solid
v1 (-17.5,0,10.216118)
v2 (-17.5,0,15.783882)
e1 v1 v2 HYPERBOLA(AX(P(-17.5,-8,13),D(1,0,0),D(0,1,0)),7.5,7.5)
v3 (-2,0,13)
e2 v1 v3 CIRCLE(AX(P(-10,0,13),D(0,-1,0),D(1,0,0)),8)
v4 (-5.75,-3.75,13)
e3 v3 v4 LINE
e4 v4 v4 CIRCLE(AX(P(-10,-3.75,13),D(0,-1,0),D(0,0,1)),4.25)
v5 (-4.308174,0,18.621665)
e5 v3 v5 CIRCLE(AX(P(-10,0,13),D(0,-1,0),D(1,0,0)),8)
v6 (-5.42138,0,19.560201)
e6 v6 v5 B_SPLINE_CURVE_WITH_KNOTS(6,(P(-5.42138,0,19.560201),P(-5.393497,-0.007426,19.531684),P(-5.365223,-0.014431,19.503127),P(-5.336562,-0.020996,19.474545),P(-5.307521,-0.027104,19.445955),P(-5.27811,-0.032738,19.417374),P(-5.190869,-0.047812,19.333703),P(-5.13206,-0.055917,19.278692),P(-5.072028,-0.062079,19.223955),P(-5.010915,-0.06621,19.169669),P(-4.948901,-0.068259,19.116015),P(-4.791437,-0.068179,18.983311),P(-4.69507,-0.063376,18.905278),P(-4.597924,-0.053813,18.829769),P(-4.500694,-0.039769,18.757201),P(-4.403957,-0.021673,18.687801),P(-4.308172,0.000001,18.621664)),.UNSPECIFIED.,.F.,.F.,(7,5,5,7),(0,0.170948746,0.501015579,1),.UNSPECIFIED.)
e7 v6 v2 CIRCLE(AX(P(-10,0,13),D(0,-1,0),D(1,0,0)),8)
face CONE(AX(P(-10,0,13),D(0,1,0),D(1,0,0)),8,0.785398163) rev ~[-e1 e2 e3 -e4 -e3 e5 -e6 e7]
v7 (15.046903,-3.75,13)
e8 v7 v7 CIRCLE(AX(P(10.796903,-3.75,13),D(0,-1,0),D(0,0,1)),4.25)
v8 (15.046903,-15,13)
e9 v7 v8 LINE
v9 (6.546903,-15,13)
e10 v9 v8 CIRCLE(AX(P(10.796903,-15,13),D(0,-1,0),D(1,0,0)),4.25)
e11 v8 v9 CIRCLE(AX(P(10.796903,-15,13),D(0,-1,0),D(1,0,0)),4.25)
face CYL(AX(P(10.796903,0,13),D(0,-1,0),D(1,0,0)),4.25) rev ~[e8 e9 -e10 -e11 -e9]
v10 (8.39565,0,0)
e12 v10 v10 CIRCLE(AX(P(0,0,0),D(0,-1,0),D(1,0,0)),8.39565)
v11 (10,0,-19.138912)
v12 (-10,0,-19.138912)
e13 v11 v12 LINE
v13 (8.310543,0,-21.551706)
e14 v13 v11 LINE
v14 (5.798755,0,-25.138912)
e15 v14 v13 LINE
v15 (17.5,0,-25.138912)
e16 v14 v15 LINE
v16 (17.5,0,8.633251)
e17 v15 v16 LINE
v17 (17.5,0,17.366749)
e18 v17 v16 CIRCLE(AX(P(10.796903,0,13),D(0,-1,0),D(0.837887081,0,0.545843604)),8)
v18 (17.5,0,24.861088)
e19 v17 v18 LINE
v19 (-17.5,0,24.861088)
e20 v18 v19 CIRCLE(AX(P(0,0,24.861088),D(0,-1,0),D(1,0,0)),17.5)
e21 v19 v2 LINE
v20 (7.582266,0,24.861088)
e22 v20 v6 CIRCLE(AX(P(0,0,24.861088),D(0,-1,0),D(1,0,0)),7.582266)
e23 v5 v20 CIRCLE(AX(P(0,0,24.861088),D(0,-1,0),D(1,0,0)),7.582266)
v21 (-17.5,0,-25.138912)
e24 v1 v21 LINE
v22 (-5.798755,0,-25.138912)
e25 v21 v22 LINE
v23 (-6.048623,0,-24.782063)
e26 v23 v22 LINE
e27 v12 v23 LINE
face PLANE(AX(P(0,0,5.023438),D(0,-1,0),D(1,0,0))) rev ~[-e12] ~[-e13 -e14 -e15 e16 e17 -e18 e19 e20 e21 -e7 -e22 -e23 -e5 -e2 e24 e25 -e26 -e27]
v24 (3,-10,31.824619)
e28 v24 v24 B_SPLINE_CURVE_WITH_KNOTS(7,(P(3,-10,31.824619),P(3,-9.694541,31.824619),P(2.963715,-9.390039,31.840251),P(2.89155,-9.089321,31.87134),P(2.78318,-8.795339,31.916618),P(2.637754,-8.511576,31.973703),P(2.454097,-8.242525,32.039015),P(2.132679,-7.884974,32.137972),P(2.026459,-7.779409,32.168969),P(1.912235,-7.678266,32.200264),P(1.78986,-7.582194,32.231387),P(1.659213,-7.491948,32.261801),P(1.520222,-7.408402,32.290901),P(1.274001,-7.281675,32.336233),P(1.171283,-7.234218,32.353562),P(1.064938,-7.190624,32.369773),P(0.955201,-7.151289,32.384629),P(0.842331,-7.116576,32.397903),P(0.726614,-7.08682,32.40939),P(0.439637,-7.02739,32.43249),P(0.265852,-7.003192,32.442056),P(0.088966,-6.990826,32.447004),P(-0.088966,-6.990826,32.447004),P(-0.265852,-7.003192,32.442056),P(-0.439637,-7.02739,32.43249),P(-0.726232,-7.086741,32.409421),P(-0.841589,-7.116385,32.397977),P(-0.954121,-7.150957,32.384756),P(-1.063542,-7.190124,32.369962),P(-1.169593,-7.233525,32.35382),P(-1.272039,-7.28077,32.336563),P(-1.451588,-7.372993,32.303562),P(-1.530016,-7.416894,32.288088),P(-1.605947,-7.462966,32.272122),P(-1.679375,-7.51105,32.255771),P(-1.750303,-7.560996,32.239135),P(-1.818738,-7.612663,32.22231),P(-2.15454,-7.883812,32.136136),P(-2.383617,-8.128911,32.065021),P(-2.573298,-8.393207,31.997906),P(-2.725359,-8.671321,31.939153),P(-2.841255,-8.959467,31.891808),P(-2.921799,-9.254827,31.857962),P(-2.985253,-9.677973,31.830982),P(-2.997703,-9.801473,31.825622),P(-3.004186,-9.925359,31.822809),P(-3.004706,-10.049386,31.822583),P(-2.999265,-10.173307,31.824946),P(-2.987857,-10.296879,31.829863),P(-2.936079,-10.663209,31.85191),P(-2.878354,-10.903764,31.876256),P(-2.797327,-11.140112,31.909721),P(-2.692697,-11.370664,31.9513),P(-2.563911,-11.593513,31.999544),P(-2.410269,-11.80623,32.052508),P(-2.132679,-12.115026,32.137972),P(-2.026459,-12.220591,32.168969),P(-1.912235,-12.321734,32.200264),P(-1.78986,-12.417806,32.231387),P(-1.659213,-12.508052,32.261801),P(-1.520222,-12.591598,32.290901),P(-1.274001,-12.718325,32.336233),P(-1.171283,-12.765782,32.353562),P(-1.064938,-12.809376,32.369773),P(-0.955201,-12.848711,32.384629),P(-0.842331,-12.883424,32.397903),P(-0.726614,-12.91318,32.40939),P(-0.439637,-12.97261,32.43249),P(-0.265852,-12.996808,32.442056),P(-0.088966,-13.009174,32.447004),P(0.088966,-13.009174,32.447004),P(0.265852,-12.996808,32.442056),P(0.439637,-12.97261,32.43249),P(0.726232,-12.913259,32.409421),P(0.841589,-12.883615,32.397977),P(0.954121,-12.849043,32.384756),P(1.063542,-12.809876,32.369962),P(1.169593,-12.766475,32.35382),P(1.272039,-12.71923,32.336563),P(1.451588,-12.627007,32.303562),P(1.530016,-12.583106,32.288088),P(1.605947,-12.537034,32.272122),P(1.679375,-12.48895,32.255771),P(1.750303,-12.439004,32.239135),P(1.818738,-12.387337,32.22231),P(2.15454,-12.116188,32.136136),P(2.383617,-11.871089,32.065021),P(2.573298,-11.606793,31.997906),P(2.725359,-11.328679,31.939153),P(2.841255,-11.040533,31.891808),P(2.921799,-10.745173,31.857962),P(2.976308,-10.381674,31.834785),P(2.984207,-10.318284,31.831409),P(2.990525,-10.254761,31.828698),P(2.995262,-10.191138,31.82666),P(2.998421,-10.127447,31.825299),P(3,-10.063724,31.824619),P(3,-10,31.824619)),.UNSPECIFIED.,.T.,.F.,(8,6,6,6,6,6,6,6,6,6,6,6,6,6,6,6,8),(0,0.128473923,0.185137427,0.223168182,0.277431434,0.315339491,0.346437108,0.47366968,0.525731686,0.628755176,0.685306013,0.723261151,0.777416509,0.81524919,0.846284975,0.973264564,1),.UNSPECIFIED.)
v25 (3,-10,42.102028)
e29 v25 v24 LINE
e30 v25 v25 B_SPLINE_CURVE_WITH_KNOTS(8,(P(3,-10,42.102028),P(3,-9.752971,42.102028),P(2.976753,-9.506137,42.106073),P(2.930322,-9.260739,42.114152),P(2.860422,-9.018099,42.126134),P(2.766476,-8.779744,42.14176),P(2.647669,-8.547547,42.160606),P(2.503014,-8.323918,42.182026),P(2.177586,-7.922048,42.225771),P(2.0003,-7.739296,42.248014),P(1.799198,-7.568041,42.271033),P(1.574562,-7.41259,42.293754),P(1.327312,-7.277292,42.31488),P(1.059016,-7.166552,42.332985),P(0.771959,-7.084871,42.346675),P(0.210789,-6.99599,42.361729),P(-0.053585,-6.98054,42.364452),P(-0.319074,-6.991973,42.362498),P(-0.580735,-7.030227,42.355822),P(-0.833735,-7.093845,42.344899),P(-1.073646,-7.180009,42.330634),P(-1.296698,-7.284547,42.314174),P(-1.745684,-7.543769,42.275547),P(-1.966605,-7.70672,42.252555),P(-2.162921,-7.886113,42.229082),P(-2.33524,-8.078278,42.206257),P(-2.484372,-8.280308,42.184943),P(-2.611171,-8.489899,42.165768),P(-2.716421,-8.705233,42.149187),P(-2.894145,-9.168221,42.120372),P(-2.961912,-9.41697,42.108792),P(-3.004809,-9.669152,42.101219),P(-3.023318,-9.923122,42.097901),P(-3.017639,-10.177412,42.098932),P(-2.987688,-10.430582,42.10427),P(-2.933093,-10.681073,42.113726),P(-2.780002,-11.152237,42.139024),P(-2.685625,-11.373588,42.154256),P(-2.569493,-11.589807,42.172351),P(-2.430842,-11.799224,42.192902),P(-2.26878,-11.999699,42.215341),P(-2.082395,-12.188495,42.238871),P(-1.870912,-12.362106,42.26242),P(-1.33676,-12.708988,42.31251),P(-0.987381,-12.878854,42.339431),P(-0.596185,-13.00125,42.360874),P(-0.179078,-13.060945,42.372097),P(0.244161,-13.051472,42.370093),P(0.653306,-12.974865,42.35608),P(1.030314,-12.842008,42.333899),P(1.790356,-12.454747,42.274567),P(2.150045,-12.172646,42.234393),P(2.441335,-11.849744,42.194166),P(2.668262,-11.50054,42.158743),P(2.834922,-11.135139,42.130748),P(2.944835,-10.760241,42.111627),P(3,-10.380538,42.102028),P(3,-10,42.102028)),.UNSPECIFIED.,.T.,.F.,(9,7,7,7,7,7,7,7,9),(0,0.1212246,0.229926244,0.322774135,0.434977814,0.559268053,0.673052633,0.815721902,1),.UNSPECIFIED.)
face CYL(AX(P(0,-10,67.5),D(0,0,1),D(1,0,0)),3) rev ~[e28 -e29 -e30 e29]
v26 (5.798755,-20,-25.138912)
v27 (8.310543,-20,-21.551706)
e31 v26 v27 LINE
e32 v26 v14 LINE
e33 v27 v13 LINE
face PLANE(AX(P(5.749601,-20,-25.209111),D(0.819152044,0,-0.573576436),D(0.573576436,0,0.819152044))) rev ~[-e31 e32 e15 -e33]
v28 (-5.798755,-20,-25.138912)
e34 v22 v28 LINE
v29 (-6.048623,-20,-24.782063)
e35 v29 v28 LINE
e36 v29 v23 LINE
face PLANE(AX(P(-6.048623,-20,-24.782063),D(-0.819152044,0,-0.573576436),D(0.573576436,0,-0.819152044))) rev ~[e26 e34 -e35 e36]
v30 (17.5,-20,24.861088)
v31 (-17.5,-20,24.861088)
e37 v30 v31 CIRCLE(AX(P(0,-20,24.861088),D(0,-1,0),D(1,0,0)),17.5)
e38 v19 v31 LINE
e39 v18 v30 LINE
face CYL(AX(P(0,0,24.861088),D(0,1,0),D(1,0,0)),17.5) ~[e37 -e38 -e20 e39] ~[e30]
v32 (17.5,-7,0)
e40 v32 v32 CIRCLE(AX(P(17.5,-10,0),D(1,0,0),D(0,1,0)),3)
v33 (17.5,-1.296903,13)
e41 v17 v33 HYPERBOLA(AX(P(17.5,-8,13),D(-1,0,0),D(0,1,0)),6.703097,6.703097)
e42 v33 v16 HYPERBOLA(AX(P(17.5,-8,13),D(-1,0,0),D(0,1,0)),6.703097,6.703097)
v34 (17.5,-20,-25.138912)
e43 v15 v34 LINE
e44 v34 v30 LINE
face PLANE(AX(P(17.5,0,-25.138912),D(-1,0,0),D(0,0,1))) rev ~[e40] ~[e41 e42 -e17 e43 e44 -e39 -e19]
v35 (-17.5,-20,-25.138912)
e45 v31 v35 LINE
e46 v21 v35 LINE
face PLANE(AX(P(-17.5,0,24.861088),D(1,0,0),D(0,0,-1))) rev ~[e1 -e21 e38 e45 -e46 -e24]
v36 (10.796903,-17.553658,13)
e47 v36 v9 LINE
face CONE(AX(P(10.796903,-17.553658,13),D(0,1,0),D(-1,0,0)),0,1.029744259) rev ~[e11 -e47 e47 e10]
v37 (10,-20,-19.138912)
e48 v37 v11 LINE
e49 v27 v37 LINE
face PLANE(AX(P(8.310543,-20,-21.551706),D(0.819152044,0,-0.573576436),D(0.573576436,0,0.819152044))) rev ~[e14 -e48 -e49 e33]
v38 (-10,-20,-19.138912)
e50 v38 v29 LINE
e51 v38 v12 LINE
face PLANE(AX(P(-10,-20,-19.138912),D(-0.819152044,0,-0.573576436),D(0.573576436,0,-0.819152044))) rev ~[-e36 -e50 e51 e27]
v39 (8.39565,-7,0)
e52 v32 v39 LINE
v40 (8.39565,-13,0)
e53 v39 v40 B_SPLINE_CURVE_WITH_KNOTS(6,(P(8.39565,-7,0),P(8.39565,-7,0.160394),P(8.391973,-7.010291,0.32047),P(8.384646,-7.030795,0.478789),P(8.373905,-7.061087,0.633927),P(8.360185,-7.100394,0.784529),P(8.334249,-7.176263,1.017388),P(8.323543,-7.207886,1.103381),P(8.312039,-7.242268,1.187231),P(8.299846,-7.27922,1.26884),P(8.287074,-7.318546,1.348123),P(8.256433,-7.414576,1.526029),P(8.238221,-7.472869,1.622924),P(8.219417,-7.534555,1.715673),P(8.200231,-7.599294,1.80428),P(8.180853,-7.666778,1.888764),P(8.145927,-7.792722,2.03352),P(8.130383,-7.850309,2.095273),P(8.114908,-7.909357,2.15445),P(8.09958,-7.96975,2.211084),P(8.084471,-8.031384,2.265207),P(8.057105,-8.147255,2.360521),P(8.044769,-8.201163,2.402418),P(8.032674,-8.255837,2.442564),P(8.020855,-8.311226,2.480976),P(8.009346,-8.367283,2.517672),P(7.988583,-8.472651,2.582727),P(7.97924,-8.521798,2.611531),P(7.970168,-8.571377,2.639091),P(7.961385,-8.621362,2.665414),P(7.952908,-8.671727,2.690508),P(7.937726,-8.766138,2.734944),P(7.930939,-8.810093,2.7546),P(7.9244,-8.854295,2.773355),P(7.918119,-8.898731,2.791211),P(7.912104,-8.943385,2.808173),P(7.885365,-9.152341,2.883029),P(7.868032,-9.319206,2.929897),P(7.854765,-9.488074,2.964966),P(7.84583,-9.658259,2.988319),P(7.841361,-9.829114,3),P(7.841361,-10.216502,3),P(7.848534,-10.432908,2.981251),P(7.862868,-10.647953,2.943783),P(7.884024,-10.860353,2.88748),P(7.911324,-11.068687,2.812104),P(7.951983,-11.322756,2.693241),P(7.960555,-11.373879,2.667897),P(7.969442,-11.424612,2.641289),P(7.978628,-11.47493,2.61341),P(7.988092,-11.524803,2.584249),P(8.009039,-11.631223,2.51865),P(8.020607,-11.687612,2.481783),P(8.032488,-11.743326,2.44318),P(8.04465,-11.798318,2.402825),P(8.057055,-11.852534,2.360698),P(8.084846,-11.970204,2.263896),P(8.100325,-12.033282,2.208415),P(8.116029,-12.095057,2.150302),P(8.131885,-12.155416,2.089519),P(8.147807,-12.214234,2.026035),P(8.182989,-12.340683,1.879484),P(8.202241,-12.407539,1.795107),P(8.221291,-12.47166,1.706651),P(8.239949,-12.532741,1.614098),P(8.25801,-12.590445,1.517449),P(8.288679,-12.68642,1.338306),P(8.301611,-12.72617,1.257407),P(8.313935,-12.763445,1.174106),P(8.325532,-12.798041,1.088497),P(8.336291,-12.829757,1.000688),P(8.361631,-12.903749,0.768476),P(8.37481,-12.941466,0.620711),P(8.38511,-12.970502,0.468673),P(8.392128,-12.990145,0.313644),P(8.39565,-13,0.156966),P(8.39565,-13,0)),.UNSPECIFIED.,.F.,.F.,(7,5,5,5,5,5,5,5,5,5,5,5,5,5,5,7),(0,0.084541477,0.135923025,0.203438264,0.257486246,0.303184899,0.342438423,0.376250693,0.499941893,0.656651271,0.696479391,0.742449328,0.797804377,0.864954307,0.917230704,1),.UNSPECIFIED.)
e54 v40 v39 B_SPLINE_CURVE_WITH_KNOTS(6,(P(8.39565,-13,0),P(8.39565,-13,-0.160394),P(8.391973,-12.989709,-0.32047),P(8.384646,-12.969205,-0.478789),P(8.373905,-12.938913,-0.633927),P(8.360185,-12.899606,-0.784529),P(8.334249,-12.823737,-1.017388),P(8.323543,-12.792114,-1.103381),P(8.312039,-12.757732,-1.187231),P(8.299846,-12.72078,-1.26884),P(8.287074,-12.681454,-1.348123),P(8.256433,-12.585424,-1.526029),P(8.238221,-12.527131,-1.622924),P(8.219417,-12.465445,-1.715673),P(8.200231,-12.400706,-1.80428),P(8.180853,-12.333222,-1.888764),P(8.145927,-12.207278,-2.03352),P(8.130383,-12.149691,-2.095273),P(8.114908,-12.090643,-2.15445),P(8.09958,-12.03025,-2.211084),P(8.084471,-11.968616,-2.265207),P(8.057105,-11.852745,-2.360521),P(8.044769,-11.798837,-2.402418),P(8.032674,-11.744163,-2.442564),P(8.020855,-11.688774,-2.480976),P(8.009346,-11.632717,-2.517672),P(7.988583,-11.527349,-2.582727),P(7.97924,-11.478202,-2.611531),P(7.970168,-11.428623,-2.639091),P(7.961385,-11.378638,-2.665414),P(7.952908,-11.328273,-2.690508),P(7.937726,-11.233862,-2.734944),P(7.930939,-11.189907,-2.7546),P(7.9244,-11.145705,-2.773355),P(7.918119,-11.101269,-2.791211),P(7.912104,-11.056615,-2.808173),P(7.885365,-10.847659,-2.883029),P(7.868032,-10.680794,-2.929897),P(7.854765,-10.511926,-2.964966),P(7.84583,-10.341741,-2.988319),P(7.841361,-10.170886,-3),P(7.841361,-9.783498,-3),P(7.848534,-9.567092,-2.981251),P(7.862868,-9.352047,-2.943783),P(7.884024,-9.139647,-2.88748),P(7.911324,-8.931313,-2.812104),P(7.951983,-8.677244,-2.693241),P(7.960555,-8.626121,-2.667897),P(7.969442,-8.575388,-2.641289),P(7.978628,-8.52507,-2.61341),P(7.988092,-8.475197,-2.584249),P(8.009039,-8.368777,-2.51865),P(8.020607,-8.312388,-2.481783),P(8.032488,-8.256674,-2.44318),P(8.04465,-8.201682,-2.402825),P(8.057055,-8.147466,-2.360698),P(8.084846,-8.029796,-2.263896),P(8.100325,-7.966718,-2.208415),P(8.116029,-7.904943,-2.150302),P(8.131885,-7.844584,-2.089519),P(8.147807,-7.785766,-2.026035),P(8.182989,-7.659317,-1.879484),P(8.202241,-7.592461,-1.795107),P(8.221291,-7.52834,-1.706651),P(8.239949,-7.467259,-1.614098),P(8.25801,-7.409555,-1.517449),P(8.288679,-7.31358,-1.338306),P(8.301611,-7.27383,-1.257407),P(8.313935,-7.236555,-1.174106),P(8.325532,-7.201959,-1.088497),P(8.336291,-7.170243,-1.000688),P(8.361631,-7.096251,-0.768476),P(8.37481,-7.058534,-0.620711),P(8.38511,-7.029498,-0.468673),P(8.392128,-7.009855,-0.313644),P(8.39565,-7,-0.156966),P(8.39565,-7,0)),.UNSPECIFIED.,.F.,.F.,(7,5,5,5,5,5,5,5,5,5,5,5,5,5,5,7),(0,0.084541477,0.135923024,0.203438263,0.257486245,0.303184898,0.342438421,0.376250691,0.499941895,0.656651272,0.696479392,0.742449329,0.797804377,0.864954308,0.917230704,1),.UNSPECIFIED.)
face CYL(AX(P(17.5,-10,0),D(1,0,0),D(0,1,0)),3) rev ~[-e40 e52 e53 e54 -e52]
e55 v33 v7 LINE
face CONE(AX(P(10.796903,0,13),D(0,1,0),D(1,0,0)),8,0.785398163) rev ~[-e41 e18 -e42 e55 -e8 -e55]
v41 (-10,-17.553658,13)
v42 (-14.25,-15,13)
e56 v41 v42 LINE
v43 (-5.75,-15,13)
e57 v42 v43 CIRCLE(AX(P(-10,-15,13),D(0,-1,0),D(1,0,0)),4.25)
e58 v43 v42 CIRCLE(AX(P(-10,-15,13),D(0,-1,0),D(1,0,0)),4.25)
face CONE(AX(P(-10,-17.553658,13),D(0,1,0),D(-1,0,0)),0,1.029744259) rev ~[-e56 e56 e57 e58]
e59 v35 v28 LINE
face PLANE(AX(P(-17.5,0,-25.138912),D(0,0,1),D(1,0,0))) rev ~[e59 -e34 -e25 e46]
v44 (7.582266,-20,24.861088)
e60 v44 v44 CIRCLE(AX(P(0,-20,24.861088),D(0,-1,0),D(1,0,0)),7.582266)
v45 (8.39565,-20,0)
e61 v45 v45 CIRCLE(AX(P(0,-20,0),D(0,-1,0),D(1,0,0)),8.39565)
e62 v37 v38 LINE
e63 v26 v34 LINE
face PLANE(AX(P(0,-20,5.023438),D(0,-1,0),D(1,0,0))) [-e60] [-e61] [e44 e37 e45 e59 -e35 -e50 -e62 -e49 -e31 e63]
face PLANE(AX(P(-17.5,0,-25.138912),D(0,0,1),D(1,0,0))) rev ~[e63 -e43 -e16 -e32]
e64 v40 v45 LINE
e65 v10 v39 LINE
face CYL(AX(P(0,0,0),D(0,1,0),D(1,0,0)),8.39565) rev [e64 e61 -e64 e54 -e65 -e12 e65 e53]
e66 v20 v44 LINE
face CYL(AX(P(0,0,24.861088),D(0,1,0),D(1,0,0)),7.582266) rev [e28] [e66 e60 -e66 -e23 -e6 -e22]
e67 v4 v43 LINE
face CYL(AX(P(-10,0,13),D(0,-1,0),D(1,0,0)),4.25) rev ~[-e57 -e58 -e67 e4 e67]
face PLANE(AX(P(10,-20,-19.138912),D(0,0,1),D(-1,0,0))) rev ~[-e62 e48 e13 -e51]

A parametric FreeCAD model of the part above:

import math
import FreeCAD as App
import Part
import Sketcher

V = App.Vector
Q = App.Units.Quantity

doc = App.newDocument("Part")
params = doc.addObject("Spreadsheet::Sheet", "Params")
for row, (alias, value) in enumerate([
    ("sketch1_radius", "17.5 mm"),
    ("sketch1_height", "50 mm"),
    ("pad1_length", "20 mm"),
    ("sketch2_width", "20 mm"),
    ("pocket1_length", "25 mm"),
    ("sketch3_diameter", "6 mm"),
    ("pocket2_length", "10 mm"),
    ("sketch4_diameter", "6 mm"),
    ("pocket3_length", "40 mm"),
    ("sketch5_diameter", "8.5 mm"),
    ("hole_diameter", "8.5 mm"),
    ("hole_depth", "15 mm"),
    ("hole_csink_diameter", "16 mm"),
], start=1):
    params.set(f"A{row}", alias)
    params.set(f"B{row}", "=" + value)
    params.setAlias(f"B{row}", alias)

body = doc.addObject("PartDesign::Body", "Body")

# Sketch on XZ plane
sketch1 = body.newObject("Sketcher::SketchObject", "Sketch")
sketch1.AttachmentSupport = (doc.getObject("XZ_Plane"), [""])
sketch1.MapMode = "FlatFace"
sketch1.addGeometry([
    Part.LineSegment(V(-18, 25, 0), V(-18, -25, 0)),  # 0
    Part.LineSegment(V(-18, -25, 0), V(18, -25, 0)),  # 1
    Part.LineSegment(V(18, -25, 0), V(18, 25, 0)),  # 2
    Part.ArcOfCircle(Part.Circle(V(0, 25, 0), V(0, 0, 1), 18), math.radians(0), math.radians(180)),  # 3
    Part.Circle(V(0, 0, 0), V(0, 0, 1), 8),  # 4
    Part.Circle(V(0, 25, 0), V(0, 0, 1), 8),  # 5
], False)
sketch1.addConstraint([
    Sketcher.Constraint("Coincident", 0, 2, 1, 1),
    Sketcher.Constraint("Coincident", 1, 2, 2, 1),
    Sketcher.Constraint("Tangent", 2, 2, 3, 1),
    Sketcher.Constraint("Tangent", 3, 2, 0, 1),
    Sketcher.Constraint("Vertical", 0),
    Sketcher.Constraint("Horizontal", 1),
    Sketcher.Constraint("Vertical", 2),
    Sketcher.Constraint("Coincident", 4, 3, -1, 1),
    Sketcher.Constraint("Coincident", 5, 3, 3, 3),
    Sketcher.Constraint("PointOnObject", 3, 3, -2),
    Sketcher.Constraint("Radius", 3, Q("17.5 mm")),
    Sketcher.Constraint("DistanceY", 0, 2, 0, 1, Q("50 mm")),
    Sketcher.Constraint("Diameter", 4, Q("16.7913 mm")),
    Sketcher.Constraint("Diameter", 5, Q("15.164532 mm")),
    Sketcher.Constraint("DistanceY", -1, 1, 3, 3, Q("24.861088 mm")),
])
sketch1.setExpression("Constraints[10]", "Params.sketch1_radius")
sketch1.setExpression("Constraints[11]", "Params.sketch1_height")
pad1 = body.newObject("PartDesign::Pad", "Pad")
pad1.Profile = sketch1
pad1.setExpression("Length", "Params.pad1_length")

# Sketch on XZ plane
sketch2 = body.newObject("Sketcher::SketchObject", "Sketch001")
sketch2.AttachmentSupport = (doc.getObject("XZ_Plane"), [""])
sketch2.MapMode = "FlatFace"
sketch2.AttachmentOffset = App.Placement(V(0, 0, 20), App.Rotation())
sketch2.addGeometry([
    Part.LineSegment(V(-10, -19.1, 0), V(-6, -24.8, 0)),  # 0
    Part.LineSegment(V(-6, -24.8, 0), V(-5.7, -25.2, 0)),  # 1
    Part.LineSegment(V(-5.7, -25.2, 0), V(5.7, -25.2, 0)),  # 2
    Part.LineSegment(V(5.7, -25.2, 0), V(8.3, -21.6, 0)),  # 3
    Part.LineSegment(V(8.3, -21.6, 0), V(10, -19.1, 0)),  # 4
    Part.LineSegment(V(10, -19.1, 0), V(-10, -19.1, 0)),  # 5
], False)
sketch2.addConstraint([
    Sketcher.Constraint("Coincident", 0, 2, 1, 1),
    Sketcher.Constraint("Coincident", 1, 2, 2, 1),
    Sketcher.Constraint("Coincident", 2, 2, 3, 1),
    Sketcher.Constraint("Coincident", 3, 2, 4, 1),
    Sketcher.Constraint("Coincident", 4, 2, 5, 1),
    Sketcher.Constraint("Coincident", 5, 2, 0, 1),
    Sketcher.Constraint("Horizontal", 5),
    Sketcher.Constraint("Parallel", 0, 1),
    Sketcher.Constraint("Parallel", 3, 4),
    Sketcher.Constraint("DistanceX", 5, 2, 5, 1, Q("20 mm")),
    Sketcher.Constraint("Angle", 0, Q("-55 deg")),
    Sketcher.Constraint("Angle", 3, Q("55 deg")),
    Sketcher.Constraint("DistanceX", -1, 1, 4, 2, Q("10 mm")),
    Sketcher.Constraint("DistanceX", -1, 1, 2, 2, Q("5.749601 mm")),
    Sketcher.Constraint("Distance", 1, Q("0.563212 mm")),
    Sketcher.Constraint("Distance", 2, Q("11.475231 mm")),
    Sketcher.Constraint("DistanceY", 1, 2, -1, 1, Q("25.243419 mm")),
    Sketcher.Constraint("DistanceX", 1, 2, 3, 2, Q("14.036121 mm")),
])
sketch2.setExpression("Constraints[9]", "Params.sketch2_width")
pocket1 = body.newObject("PartDesign::Pocket", "Pocket")
pocket1.Profile = sketch2
pocket1.setExpression("Length", "Params.pocket1_length")

# Sketch on YZ plane
sketch3 = body.newObject("Sketcher::SketchObject", "Sketch002")
sketch3.AttachmentSupport = (doc.getObject("YZ_Plane"), [""])
sketch3.MapMode = "FlatFace"
sketch3.AttachmentOffset = App.Placement(V(0, 0, 17.5), App.Rotation())
sketch3.addGeometry(Part.Circle(V(-10, 0, 0), V(0, 0, 1), 3), False)
sketch3.addConstraint([
    Sketcher.Constraint("PointOnObject", 0, 3, -1),
    Sketcher.Constraint("Diameter", 0, Q("6 mm")),
    Sketcher.Constraint("DistanceX", 0, 3, -1, 1, Q("10 mm")),
])
sketch3.setExpression("Constraints[1]", "Params.sketch3_diameter")
pocket2 = body.newObject("PartDesign::Pocket", "Pocket001")
pocket2.Profile = sketch3
pocket2.setExpression("Length", "Params.pocket2_length")

# Sketch on XY plane
sketch4 = body.newObject("Sketcher::SketchObject", "Sketch003")
sketch4.AttachmentSupport = (doc.getObject("XY_Plane"), [""])
sketch4.MapMode = "FlatFace"
sketch4.AttachmentOffset = App.Placement(V(0, 0, 67.5), App.Rotation())
sketch4.addGeometry(Part.Circle(V(0, -10, 0), V(0, 0, 1), 3), False)
sketch4.addConstraint([
    Sketcher.Constraint("PointOnObject", 0, 3, -2),
    Sketcher.Constraint("Diameter", 0, Q("6 mm")),
    Sketcher.Constraint("DistanceY", 0, 3, -1, 1, Q("10 mm")),
])
sketch4.setExpression("Constraints[1]", "Params.sketch4_diameter")
pocket3 = body.newObject("PartDesign::Pocket", "Pocket002")
pocket3.Profile = sketch4
pocket3.setExpression("Length", "Params.pocket3_length")

# Sketch on XZ plane
sketch5 = body.newObject("Sketcher::SketchObject", "Sketch004")
sketch5.AttachmentSupport = (doc.getObject("XZ_Plane"), [""])
sketch5.MapMode = "FlatFace"
sketch5.addGeometry([
    Part.Circle(V(-10, 13, 0), V(0, 0, 1), 4.2),
    Part.Circle(V(10.8, 13, 0), V(0, 0, 1), 4.2),
], False)
sketch5.addConstraint([
    Sketcher.Constraint("Equal", 0, 1),
    Sketcher.Constraint("Horizontal", 0, 3, 1, 3),
    Sketcher.Constraint("Diameter", 0, Q("8.5 mm")),
    Sketcher.Constraint("DistanceX", 0, 3, -1, 1, Q("10 mm")),
    Sketcher.Constraint("DistanceY", -1, 1, 0, 3, Q("13 mm")),
    Sketcher.Constraint("DistanceX", -1, 1, 1, 3, Q("10.796903 mm")),
])
sketch5.setExpression("Constraints[2]", "Params.sketch5_diameter")
doc.recompute()
hole = body.newObject("PartDesign::Hole", "Hole")
hole.Profile = sketch5
hole.ThreadType = "None"
hole.setExpression("Diameter", "Params.hole_diameter")
hole.DepthType = "Dimension"
hole.setExpression("Depth", "Params.hole_depth")
hole.DrillPoint = "Angled"
hole.DrillPointAngle = 118
hole.HoleCutType = "Countersink"
hole.setExpression("HoleCutDiameter", "Params.hole_csink_diameter")
hole.HoleCutCountersinkAngle = 90
hole.Reversed = True

doc.recompute()
